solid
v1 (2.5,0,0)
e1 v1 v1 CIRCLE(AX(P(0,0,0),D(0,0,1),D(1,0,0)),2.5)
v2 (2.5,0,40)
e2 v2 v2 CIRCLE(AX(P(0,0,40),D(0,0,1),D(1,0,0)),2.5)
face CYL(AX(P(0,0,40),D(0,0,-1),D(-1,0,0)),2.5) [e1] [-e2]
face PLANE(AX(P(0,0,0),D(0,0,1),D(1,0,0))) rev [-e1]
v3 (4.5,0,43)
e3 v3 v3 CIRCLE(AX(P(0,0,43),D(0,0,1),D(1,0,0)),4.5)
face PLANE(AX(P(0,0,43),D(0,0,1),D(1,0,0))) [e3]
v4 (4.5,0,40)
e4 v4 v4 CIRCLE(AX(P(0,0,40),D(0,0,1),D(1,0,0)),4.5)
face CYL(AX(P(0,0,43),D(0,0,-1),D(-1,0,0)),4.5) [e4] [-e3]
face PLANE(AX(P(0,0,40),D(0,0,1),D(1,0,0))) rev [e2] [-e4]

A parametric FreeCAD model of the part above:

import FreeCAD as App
import Part
import Sketcher
from FreeCAD import Vector

doc = App.newDocument("Part")
body = doc.addObject("PartDesign::Body", "Body")

sketch1 = doc.addObject("Sketcher::SketchObject", "Sketch")
body.addObject(sketch1)
sketch1.AttachmentSupport = (doc.XY_Plane, [""])
sketch1.MapMode = "FlatFace"
sketch1.addGeometry(Part.Circle(Vector(0, 0, 0), Vector(0, 0, 1), 2.5), False)
sketch1.addConstraint(Sketcher.Constraint("Coincident", 0, 3, -1, 1))
sketch1.addConstraint(Sketcher.Constraint("Diameter", 0, 5.0))
pad1 = doc.addObject("PartDesign::Pad", "Pad")
body.addObject(pad1)
pad1.Profile = sketch1
pad1.Length = 40

sketch2 = doc.addObject("Sketcher::SketchObject", "Sketch001")
body.addObject(sketch2)
sketch2.AttachmentSupport = (doc.XY_Plane, [""])
sketch2.MapMode = "FlatFace"
sketch2.AttachmentOffset = App.Placement(Vector(0, 0, 40), App.Rotation())
sketch2.addGeometry(Part.Circle(Vector(0, 0, 0), Vector(0, 0, 1), 4.5), False)
sketch2.addConstraint(Sketcher.Constraint("Coincident", 0, 3, -1, 1))
sketch2.addConstraint(Sketcher.Constraint("Diameter", 0, 9.0))
pad2 = doc.addObject("PartDesign::Pad", "Pad001")
body.addObject(pad2)
pad2.Profile = sketch2
pad2.Length = 3

doc.recompute()
